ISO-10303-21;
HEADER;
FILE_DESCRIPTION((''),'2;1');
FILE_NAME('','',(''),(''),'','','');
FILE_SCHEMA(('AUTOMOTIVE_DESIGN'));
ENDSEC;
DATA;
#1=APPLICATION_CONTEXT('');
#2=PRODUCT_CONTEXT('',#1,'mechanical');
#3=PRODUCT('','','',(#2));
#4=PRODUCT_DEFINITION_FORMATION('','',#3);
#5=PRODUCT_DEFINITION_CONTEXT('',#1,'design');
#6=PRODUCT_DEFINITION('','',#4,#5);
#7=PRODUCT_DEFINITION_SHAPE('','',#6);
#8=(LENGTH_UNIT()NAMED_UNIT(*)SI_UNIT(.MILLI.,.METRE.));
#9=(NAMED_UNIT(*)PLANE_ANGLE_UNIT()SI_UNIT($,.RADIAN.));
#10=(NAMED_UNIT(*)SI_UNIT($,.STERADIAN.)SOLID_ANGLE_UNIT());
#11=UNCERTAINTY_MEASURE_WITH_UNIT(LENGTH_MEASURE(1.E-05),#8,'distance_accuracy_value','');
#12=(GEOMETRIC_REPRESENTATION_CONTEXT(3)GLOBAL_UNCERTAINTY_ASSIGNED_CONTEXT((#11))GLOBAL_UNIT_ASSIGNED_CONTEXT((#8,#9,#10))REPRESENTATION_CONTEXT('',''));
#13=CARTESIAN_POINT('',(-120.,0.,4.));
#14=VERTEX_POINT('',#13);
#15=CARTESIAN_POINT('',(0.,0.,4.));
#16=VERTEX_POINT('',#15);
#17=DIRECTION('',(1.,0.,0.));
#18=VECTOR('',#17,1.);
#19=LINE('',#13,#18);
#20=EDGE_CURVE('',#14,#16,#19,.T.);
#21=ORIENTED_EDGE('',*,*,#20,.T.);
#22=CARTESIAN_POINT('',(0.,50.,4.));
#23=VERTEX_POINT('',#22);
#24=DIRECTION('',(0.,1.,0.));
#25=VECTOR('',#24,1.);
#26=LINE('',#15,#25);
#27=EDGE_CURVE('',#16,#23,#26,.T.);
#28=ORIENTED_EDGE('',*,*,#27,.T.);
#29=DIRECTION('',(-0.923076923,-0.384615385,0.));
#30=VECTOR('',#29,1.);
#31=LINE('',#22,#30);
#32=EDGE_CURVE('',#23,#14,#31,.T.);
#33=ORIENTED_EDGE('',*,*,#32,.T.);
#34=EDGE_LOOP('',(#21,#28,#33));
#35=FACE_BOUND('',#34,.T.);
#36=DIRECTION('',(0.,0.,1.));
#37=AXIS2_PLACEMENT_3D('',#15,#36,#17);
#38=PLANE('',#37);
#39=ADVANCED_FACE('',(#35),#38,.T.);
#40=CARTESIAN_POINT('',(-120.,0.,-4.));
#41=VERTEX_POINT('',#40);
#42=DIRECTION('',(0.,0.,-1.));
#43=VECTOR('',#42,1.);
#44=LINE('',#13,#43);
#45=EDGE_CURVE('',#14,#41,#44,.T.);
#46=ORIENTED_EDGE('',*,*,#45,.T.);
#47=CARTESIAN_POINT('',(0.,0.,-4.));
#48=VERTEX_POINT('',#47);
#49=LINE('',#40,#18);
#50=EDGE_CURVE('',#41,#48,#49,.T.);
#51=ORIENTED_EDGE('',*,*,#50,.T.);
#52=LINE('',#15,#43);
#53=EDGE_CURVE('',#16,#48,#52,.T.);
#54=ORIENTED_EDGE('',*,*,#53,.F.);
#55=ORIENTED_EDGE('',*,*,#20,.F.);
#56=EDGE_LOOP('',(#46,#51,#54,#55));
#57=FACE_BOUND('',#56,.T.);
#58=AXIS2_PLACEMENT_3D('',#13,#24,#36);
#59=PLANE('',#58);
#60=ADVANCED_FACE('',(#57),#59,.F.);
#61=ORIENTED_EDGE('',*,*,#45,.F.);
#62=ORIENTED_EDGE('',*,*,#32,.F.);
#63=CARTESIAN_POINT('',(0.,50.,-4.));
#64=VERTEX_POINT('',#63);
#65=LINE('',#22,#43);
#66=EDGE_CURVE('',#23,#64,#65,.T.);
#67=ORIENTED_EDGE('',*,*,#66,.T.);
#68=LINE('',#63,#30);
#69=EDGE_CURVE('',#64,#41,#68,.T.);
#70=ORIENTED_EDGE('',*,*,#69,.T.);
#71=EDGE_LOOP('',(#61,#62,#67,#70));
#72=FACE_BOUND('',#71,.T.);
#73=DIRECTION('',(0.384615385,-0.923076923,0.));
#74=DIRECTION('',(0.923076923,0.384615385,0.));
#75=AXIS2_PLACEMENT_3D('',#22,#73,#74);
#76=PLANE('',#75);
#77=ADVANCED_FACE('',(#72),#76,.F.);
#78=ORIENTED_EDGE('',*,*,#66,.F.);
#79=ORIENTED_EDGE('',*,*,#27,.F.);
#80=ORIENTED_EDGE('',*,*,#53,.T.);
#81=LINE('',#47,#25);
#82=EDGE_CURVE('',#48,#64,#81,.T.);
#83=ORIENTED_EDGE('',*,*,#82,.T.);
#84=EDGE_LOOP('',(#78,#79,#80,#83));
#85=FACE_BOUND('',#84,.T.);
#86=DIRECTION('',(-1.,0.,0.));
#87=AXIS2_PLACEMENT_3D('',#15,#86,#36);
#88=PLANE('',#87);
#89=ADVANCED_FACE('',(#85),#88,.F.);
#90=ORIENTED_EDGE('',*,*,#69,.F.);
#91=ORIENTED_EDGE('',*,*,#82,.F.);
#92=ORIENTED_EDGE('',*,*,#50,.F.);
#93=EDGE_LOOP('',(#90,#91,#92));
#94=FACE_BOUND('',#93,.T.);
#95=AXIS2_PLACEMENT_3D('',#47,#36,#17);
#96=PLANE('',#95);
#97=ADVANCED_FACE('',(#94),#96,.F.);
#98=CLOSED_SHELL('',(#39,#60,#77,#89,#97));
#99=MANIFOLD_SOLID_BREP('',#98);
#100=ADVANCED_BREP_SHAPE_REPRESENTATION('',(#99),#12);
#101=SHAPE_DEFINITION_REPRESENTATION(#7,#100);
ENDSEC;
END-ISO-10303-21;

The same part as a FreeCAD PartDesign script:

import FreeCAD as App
import Part
import Sketcher


def add_polygon(sketch, points):
    """Adds a closed chain of lines whose ends are joined by coincident constraints."""
    first, n = sketch.GeometryCount, len(points)
    for a, b in zip(points, points[1:] + points[:1]):
        sketch.addGeometry(Part.LineSegment(App.Vector(*a, 0), App.Vector(*b, 0)), False)
    for i in range(n):
        sketch.addConstraint(Sketcher.Constraint("Coincident", first + i, 2, first + (i + 1) % n, 1))

doc = App.newDocument("Part")
params = doc.addObject("Spreadsheet::Sheet", "Params")
for row, (alias, value) in enumerate([
    ("sketch1_width", "120 mm"),
    ("sketch1_height", "50 mm"),
    ("pad1_length", "8 mm"),
], start=1):
    params.set(f"A{row}", alias)
    params.set(f"B{row}", "=" + value)
    params.setAlias(f"B{row}", alias)

body = doc.addObject("PartDesign::Body", "Body")

# Sketch on XY plane
sketch1 = body.newObject("Sketcher::SketchObject", "Sketch")
sketch1.AttachmentSupport = (doc.getObject("XY_Plane"), [""])
sketch1.MapMode = "FlatFace"
add_polygon(sketch1, [(0, 0), (0, 50), (-120, 0)])  # lines 0-2
sketch1.addConstraint([
    Sketcher.Constraint("Vertical", 0),
    Sketcher.Constraint("Horizontal", 2),
    Sketcher.Constraint("Coincident", 2, 2, -1, 1),
    Sketcher.Constraint("DistanceX", 2, 1, 2, 2, 120.0),
    Sketcher.Constraint("DistanceY", 0, 1, 0, 2, 50.0),
])
sketch1.setExpression("Constraints[6]", "Params.sketch1_width")
sketch1.setExpression("Constraints[7]", "Params.sketch1_height")
pad1 = body.newObject("PartDesign::Pad", "Pad")
pad1.Profile = sketch1
pad1.setExpression("Length", "Params.pad1_length")
pad1.Midplane = True

doc.recompute()
